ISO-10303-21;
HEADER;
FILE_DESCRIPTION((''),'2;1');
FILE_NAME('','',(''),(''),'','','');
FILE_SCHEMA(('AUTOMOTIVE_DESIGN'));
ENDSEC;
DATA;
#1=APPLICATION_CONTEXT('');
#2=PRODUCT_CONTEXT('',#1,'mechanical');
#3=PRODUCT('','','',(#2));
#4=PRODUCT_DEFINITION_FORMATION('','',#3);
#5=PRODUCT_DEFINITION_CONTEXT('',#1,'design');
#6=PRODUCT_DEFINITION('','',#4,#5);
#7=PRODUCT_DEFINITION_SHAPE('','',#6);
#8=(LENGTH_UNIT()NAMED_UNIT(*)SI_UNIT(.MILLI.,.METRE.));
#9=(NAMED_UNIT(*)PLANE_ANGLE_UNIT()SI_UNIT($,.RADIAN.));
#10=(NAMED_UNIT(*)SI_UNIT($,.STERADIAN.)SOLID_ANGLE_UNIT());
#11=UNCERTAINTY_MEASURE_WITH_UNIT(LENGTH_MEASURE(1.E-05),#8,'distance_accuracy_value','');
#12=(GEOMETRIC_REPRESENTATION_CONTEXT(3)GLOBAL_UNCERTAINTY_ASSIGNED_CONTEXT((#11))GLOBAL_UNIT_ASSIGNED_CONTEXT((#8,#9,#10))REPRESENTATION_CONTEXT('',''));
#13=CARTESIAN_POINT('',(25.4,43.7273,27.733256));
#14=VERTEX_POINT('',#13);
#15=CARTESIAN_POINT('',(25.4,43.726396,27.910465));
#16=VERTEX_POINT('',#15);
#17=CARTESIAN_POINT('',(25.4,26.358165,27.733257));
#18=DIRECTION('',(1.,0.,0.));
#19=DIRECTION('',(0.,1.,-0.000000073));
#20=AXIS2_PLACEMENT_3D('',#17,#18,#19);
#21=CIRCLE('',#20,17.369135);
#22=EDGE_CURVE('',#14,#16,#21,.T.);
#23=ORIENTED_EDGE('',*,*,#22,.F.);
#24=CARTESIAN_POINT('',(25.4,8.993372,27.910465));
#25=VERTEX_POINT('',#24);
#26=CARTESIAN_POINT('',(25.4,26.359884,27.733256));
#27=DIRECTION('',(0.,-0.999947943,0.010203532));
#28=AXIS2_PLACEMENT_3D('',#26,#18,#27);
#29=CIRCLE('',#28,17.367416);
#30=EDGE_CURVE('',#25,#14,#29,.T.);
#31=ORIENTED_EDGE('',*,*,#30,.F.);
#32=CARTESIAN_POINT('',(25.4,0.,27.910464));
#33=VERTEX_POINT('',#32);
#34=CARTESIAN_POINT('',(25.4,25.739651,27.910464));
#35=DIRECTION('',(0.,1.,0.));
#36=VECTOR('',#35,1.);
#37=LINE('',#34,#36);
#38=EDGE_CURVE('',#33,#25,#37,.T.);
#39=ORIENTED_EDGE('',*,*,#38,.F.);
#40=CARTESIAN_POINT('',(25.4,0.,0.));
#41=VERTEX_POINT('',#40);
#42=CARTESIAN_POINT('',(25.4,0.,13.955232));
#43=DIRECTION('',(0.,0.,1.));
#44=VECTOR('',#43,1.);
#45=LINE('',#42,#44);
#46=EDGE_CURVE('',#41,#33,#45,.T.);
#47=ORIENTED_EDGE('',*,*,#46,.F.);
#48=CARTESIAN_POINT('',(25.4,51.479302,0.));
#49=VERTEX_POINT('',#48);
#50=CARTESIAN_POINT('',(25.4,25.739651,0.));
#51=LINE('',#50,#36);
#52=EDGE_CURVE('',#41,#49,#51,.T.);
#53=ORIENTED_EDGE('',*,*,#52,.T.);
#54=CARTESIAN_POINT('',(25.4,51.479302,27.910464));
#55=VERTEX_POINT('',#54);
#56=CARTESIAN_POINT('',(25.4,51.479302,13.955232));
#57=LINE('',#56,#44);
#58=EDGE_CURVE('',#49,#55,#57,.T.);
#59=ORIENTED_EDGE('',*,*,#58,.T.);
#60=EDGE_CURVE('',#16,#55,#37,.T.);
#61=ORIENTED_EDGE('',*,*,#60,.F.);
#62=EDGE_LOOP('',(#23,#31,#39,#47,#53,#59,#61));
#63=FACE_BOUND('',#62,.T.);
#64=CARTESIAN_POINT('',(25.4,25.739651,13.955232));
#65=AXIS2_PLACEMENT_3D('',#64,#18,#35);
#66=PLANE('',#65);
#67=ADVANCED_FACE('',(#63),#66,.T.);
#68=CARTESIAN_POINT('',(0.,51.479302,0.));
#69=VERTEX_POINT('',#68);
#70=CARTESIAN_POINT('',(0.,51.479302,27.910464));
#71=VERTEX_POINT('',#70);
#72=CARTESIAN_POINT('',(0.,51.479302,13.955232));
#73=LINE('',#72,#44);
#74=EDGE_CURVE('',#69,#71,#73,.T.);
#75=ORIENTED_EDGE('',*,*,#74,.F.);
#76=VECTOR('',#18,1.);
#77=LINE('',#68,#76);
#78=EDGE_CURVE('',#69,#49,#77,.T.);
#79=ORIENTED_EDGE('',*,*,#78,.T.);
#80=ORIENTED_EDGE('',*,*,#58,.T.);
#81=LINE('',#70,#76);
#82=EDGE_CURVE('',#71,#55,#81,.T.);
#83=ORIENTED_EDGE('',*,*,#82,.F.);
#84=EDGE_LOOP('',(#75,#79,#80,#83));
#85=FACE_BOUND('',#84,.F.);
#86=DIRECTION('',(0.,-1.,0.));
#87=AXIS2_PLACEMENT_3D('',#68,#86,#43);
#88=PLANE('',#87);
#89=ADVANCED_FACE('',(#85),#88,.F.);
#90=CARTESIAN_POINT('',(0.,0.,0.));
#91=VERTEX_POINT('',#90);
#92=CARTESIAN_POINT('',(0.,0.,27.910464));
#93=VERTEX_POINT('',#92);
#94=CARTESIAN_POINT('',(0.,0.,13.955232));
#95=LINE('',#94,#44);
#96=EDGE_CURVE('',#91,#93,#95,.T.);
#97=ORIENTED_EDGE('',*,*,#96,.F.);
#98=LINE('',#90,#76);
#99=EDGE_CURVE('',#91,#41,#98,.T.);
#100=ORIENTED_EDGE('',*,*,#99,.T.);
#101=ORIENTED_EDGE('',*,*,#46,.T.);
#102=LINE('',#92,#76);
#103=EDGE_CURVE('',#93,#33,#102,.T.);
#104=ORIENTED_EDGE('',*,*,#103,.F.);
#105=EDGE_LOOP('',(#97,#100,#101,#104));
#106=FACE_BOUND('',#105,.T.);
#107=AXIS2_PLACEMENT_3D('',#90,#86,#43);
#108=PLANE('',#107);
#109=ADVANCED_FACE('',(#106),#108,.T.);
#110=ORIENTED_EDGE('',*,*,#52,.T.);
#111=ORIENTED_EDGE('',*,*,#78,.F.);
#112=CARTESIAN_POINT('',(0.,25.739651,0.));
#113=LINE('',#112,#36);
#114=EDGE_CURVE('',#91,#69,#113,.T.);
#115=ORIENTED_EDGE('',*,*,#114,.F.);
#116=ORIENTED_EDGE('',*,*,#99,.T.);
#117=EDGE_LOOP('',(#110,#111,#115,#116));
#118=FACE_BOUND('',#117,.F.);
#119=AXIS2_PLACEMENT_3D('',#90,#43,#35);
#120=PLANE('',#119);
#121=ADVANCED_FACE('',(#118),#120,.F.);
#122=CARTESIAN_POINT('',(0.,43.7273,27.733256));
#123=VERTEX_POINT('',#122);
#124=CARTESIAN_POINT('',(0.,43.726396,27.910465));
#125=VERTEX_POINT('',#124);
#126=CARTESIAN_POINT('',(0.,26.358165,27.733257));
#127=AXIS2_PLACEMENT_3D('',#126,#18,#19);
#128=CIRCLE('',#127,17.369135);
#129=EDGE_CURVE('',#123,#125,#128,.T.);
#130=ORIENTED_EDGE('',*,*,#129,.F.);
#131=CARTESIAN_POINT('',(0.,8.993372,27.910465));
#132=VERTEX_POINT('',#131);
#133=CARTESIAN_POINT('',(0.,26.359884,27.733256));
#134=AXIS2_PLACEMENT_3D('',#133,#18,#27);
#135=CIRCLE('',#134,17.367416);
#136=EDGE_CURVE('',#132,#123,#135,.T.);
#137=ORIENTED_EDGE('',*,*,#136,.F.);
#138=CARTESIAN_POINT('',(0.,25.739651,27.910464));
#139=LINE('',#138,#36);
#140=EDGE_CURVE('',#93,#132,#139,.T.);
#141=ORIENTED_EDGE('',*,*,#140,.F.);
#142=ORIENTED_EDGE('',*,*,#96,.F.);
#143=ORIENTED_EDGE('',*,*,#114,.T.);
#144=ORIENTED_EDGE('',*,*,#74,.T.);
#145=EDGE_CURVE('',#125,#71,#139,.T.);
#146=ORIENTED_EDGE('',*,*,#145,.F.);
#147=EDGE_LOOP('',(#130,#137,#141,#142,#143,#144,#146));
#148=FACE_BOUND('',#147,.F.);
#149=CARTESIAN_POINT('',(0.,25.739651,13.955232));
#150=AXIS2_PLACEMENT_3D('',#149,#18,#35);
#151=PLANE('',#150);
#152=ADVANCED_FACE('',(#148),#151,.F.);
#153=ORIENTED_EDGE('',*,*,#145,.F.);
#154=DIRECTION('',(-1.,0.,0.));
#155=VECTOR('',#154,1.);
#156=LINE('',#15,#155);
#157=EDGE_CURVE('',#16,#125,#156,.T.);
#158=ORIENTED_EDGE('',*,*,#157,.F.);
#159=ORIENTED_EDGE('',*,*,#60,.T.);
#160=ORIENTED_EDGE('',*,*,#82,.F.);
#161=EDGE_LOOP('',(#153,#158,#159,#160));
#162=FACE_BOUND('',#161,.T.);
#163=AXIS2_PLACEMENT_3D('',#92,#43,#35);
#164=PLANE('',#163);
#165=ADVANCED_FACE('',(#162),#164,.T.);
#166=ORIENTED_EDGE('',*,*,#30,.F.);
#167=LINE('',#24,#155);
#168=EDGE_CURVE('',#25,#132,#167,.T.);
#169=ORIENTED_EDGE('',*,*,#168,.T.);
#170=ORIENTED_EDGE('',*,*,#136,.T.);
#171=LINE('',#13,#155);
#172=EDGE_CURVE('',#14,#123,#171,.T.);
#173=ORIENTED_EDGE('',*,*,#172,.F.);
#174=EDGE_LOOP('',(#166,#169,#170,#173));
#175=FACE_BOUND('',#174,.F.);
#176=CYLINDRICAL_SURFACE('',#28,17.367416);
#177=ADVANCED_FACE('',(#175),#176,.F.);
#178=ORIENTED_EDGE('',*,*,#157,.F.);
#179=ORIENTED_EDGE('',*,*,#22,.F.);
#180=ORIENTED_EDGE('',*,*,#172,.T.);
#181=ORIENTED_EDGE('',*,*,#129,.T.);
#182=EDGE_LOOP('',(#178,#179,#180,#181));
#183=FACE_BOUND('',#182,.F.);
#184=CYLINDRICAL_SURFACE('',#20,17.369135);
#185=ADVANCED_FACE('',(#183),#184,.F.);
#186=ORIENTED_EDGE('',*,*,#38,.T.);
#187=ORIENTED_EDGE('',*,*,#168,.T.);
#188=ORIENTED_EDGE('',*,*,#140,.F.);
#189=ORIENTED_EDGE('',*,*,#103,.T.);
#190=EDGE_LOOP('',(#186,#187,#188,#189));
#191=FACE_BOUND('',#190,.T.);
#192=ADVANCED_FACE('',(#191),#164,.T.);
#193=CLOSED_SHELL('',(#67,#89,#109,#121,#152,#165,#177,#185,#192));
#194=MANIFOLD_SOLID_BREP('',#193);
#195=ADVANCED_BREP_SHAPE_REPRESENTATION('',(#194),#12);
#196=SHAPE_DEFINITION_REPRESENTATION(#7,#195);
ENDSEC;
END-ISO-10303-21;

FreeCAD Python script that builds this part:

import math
import FreeCAD as App
import Part
import Sketcher
from FreeCAD import Vector
Q = App.Units.Quantity

doc = App.newDocument("Part")
body = doc.addObject("PartDesign::Body", "Body")

sketch1 = body.newObject("Sketcher::SketchObject", "Sketch")
sketch1.AttachmentSupport = (doc.getObject("YZ_Plane"), [""])
sketch1.MapMode = "FlatFace"
sketch1.addGeometry(Part.LineSegment(Vector(0, 28, 0), Vector(0, 0, 0)), False)
sketch1.addGeometry(Part.LineSegment(Vector(0, 0, 0), Vector(51, 0, 0)), False)
sketch1.addGeometry(Part.LineSegment(Vector(51, 0, 0), Vector(51, 28, 0)), False)
sketch1.addGeometry(Part.LineSegment(Vector(51, 28, 0), Vector(0, 28, 0)), False)
sketch1.addConstraint(Sketcher.Constraint("Coincident", 0, 2, 1, 1))
sketch1.addConstraint(Sketcher.Constraint("Coincident", 1, 2, 2, 1))
sketch1.addConstraint(Sketcher.Constraint("Coincident", 2, 2, 3, 1))
sketch1.addConstraint(Sketcher.Constraint("Coincident", 3, 2, 0, 1))
sketch1.addConstraint(Sketcher.Constraint("Vertical", 0))
sketch1.addConstraint(Sketcher.Constraint("Horizontal", 1))
sketch1.addConstraint(Sketcher.Constraint("Vertical", 2))
sketch1.addConstraint(Sketcher.Constraint("Horizontal", 3))
sketch1.addConstraint(Sketcher.Constraint("Coincident", 0, 2, -1, 1))
sketch1.addConstraint(Sketcher.Constraint("DistanceX", 1, 1, 1, 2, 51.479302))
sketch1.addConstraint(Sketcher.Constraint("DistanceY", 0, 2, 0, 1, 27.910465))
pad1 = body.newObject("PartDesign::Pad", "Pad")
pad1.Profile = sketch1
pad1.Length = Q("1 in")

sketch2 = body.newObject("Sketcher::SketchObject", "Sketch001")
sketch2.AttachmentSupport = (doc.getObject("YZ_Plane"), [""])
sketch2.MapMode = "FlatFace"
sketch2.AttachmentOffset = App.Placement(Vector(0, 0, 1 * 25.4), App.Rotation())
sketch2.addGeometry(Part.ArcOfCircle(Part.Circle(Vector(26.359884, 27.733256, 0), Vector(0, 0, 1), 17.367416), math.radians(179.415371), math.radians(360)), False)
sketch2.addGeometry(Part.ArcOfCircle(Part.Circle(Vector(26.358165, 27.733257, 0), Vector(0, 0, 1), 17.369135), math.radians(-0.000004), math.radians(0.584567)), False)
sketch2.addGeometry(Part.ArcOfCircle(Part.Circle(Vector(26.359884, 27.733256, 0), Vector(0, 0, 1), 17.367416), math.radians(0.58463), math.radians(179.41537)), False)
sketch2.addConstraint(Sketcher.Constraint("Coincident", 0, 2, 1, 1))
sketch2.addConstraint(Sketcher.Constraint("Coincident", 1, 2, 2, 1))
sketch2.addConstraint(Sketcher.Constraint("Coincident", 2, 2, 0, 1))
sketch2.addConstraint(Sketcher.Constraint("Coincident", 2, 3, 0, 3))
sketch2.addConstraint(Sketcher.Constraint("Radius", 0, 17.367416))
sketch2.addConstraint(Sketcher.Constraint("Radius", 1, 17.369135))
sketch2.addConstraint(Sketcher.Constraint("DistanceX", -1, 1, 0, 2, 43.7273))
sketch2.addConstraint(Sketcher.Constraint("DistanceX", -1, 1, 2, 2, 8.993372))
sketch2.addConstraint(Sketcher.Constraint("DistanceY", 0, 2, 1, 2, 0.177209))
sketch2.addConstraint(Sketcher.Constraint("DistanceY", 2, 3, 1, 2, 0.177209))
sketch2.addConstraint(Sketcher.Constraint("DistanceY", -1, 1, 0, 3, 27.733256))
pocket1 = body.newObject("PartDesign::Pocket", "Pocket")
pocket1.Profile = sketch2
pocket1.Length = Q("1 in")

doc.recompute()
